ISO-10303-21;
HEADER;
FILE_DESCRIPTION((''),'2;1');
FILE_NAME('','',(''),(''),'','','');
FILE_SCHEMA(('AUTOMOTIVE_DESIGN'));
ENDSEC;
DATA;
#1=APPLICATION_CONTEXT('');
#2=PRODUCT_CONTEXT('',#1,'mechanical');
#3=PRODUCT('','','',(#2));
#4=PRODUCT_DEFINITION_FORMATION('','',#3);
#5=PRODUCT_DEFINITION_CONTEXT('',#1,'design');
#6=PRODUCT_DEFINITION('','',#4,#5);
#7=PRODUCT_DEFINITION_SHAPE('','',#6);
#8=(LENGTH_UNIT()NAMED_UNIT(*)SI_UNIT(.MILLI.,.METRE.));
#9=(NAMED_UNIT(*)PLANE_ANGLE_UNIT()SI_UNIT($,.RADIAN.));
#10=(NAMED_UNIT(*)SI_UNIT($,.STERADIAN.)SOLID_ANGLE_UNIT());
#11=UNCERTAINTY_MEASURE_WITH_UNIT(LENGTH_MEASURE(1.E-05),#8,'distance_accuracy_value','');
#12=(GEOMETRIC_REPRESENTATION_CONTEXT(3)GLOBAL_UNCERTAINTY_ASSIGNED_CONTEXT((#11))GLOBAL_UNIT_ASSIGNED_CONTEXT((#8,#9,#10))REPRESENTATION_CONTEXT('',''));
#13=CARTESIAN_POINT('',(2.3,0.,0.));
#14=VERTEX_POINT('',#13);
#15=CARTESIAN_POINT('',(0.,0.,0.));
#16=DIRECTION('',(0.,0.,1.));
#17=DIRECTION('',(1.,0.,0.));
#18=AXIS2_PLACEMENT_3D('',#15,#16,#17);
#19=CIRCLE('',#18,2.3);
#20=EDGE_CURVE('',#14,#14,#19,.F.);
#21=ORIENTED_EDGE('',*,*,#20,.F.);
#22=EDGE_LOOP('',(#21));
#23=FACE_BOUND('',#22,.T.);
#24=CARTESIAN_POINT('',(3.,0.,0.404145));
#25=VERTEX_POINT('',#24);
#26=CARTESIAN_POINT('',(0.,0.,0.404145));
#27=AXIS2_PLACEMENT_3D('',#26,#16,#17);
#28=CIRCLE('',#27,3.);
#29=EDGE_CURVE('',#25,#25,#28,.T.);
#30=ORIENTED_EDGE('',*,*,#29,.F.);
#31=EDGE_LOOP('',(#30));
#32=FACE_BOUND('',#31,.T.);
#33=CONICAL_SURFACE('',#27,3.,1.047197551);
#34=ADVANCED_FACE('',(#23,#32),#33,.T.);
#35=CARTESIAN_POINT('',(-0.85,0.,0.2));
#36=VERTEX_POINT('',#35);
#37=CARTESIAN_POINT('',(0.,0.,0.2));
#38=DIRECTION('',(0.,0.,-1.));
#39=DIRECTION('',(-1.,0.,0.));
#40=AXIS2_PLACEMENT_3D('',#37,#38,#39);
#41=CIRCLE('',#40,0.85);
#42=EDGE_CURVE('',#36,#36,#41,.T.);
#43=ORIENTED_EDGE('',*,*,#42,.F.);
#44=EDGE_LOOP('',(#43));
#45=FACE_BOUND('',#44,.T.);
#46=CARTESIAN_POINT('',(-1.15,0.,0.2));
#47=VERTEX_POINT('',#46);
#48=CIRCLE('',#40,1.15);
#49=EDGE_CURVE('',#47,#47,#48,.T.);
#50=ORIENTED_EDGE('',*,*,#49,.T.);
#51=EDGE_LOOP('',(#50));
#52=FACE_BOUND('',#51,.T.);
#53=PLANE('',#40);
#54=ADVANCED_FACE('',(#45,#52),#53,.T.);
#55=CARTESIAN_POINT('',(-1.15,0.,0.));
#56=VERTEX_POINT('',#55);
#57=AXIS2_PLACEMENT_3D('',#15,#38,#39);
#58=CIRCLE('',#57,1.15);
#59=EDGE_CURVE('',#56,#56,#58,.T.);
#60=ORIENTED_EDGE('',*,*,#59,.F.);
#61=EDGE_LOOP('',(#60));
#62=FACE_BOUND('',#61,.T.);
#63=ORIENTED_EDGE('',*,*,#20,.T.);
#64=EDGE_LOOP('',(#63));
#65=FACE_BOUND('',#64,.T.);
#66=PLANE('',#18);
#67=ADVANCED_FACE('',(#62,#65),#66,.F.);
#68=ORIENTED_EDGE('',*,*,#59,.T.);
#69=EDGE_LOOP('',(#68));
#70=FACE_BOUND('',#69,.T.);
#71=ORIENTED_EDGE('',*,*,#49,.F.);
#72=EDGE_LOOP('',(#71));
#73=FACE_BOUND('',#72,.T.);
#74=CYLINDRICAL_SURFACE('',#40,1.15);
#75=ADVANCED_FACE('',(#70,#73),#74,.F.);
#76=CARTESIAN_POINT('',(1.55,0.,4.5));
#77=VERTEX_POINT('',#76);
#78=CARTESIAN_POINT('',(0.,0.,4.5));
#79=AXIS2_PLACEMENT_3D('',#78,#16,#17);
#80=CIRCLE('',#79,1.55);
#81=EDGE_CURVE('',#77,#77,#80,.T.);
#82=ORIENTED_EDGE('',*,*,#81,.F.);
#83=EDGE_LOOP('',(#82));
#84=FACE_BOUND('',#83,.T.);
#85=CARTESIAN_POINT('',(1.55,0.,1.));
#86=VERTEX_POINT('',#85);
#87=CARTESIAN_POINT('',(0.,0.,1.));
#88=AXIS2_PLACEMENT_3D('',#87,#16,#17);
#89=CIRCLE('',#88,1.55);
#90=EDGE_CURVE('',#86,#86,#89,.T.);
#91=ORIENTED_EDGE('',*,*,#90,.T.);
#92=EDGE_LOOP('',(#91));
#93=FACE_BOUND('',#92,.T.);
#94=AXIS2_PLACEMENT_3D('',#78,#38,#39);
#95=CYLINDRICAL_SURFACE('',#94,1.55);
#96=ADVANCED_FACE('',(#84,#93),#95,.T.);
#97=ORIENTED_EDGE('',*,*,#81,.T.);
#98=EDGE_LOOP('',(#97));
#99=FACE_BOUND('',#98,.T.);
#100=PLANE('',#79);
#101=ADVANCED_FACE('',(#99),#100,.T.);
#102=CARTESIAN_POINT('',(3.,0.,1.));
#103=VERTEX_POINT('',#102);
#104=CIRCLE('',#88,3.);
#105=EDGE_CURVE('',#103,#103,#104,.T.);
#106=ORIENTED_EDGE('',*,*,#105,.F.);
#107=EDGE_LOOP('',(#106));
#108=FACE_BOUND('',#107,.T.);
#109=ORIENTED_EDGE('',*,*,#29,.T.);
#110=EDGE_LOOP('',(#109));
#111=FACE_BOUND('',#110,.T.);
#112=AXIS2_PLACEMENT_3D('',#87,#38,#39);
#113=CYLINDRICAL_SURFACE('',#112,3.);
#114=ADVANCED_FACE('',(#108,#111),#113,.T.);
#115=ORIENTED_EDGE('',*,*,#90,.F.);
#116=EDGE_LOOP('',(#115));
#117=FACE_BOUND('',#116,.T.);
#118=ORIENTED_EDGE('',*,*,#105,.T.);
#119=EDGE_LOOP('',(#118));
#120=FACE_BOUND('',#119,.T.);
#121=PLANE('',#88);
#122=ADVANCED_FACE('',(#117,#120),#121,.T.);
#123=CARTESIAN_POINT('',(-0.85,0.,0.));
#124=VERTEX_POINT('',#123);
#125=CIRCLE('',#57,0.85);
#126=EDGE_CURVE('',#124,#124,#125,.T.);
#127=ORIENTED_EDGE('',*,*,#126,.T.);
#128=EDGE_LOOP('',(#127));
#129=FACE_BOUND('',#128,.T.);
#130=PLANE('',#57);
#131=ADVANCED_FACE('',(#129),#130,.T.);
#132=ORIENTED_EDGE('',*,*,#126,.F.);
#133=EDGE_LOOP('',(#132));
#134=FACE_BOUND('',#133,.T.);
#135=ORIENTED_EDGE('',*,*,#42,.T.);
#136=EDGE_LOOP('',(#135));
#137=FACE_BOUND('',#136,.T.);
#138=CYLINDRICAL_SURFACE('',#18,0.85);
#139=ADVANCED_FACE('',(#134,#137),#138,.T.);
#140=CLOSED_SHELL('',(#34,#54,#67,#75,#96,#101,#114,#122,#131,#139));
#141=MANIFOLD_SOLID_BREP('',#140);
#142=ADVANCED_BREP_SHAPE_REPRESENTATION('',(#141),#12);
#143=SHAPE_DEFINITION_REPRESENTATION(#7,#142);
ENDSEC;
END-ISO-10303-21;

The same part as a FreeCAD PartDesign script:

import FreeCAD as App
import Part
import Sketcher
Q = App.Units.Quantity


def edges_at(feature, points):
    """Names of the edges that pass closest to the given points."""
    edges = feature.Shape.Edges
    near = lambda p: min(range(len(edges)), key=lambda i: edges[i].distToShape(Part.Vertex(*p))[0])
    return sorted({f"Edge{near(p) + 1}" for p in points})

doc = App.newDocument("Part")
body = doc.addObject("PartDesign::Body", "Body")

# Sketch on XY plane
sketch1 = body.newObject("Sketcher::SketchObject", "Sketch")
sketch1.AttachmentSupport = (doc.getObject("XY_Plane"), [""])
sketch1.MapMode = "FlatFace"
sketch1.addGeometry(Part.Circle(App.Vector(0, 0, 0), App.Vector(0, 0, 1), 3), False)
sketch1.addConstraint(Sketcher.Constraint("Coincident", 0, 3, -1, 1))
sketch1.addConstraint(Sketcher.Constraint("Diameter", 0, Q("6 mm")))
pad1 = body.newObject("PartDesign::Pad", "Pad")
pad1.Profile = sketch1
pad1.Length = 1

# Sketch on XY plane
sketch2 = body.newObject("Sketcher::SketchObject", "Sketch001")
sketch2.AttachmentSupport = (doc.getObject("XY_Plane"), [""])
sketch2.MapMode = "FlatFace"
sketch2.AttachmentOffset = App.Placement(App.Vector(0, 0, 1), App.Rotation())
sketch2.addGeometry(Part.Circle(App.Vector(0, 0, 0), App.Vector(0, 0, 1), 1.55), False)
sketch2.addConstraint(Sketcher.Constraint("Coincident", 0, 3, -1, 1))
sketch2.addConstraint(Sketcher.Constraint("Diameter", 0, Q("3.1 mm")))
pad2 = body.newObject("PartDesign::Pad", "Pad001")
pad2.Profile = sketch2
pad2.Length = 3.5
doc.recompute()

chamfer = body.newObject("PartDesign::Chamfer", "Chamfer")
chamfer.Base = (pad2, edges_at(pad2, [(-3, 0, 0)]))
chamfer.ChamferType = "Two distances"
chamfer.Size = 0.7
chamfer.Size2 = 0.404145
chamfer.FlipDirection = True

# Sketch on XY plane
sketch3 = body.newObject("Sketcher::SketchObject", "Sketch002")
sketch3.AttachmentSupport = (doc.getObject("XY_Plane"), [""])
sketch3.MapMode = "FlatFace"
sketch3.addGeometry(Part.Circle(App.Vector(0, 0, 0), App.Vector(0, 0, 1), 1.15), False)
sketch3.addConstraint(Sketcher.Constraint("Coincident", 0, 3, -1, 1))
sketch3.addConstraint(Sketcher.Constraint("Diameter", 0, Q("2.3 mm")))
pocket1 = body.newObject("PartDesign::Pocket", "Pocket")
pocket1.Profile = sketch3
pocket1.Length = 0.2
pocket1.Reversed = True

# Sketch on XY plane
sketch4 = body.newObject("Sketcher::SketchObject", "Sketch003")
sketch4.AttachmentSupport = (doc.getObject("XY_Plane"), [""])
sketch4.MapMode = "FlatFace"
sketch4.AttachmentOffset = App.Placement(App.Vector(0, 0, 0.2), App.Rotation())
sketch4.addGeometry(Part.Circle(App.Vector(0, 0, 0), App.Vector(0, 0, 1), 0.85), False)
sketch4.addConstraint(Sketcher.Constraint("Coincident", 0, 3, -1, 1))
sketch4.addConstraint(Sketcher.Constraint("Diameter", 0, Q("1.7 mm")))
pad3 = body.newObject("PartDesign::Pad", "Pad002")
pad3.Profile = sketch4
pad3.Length = 0.2
pad3.Reversed = True

doc.recompute()
